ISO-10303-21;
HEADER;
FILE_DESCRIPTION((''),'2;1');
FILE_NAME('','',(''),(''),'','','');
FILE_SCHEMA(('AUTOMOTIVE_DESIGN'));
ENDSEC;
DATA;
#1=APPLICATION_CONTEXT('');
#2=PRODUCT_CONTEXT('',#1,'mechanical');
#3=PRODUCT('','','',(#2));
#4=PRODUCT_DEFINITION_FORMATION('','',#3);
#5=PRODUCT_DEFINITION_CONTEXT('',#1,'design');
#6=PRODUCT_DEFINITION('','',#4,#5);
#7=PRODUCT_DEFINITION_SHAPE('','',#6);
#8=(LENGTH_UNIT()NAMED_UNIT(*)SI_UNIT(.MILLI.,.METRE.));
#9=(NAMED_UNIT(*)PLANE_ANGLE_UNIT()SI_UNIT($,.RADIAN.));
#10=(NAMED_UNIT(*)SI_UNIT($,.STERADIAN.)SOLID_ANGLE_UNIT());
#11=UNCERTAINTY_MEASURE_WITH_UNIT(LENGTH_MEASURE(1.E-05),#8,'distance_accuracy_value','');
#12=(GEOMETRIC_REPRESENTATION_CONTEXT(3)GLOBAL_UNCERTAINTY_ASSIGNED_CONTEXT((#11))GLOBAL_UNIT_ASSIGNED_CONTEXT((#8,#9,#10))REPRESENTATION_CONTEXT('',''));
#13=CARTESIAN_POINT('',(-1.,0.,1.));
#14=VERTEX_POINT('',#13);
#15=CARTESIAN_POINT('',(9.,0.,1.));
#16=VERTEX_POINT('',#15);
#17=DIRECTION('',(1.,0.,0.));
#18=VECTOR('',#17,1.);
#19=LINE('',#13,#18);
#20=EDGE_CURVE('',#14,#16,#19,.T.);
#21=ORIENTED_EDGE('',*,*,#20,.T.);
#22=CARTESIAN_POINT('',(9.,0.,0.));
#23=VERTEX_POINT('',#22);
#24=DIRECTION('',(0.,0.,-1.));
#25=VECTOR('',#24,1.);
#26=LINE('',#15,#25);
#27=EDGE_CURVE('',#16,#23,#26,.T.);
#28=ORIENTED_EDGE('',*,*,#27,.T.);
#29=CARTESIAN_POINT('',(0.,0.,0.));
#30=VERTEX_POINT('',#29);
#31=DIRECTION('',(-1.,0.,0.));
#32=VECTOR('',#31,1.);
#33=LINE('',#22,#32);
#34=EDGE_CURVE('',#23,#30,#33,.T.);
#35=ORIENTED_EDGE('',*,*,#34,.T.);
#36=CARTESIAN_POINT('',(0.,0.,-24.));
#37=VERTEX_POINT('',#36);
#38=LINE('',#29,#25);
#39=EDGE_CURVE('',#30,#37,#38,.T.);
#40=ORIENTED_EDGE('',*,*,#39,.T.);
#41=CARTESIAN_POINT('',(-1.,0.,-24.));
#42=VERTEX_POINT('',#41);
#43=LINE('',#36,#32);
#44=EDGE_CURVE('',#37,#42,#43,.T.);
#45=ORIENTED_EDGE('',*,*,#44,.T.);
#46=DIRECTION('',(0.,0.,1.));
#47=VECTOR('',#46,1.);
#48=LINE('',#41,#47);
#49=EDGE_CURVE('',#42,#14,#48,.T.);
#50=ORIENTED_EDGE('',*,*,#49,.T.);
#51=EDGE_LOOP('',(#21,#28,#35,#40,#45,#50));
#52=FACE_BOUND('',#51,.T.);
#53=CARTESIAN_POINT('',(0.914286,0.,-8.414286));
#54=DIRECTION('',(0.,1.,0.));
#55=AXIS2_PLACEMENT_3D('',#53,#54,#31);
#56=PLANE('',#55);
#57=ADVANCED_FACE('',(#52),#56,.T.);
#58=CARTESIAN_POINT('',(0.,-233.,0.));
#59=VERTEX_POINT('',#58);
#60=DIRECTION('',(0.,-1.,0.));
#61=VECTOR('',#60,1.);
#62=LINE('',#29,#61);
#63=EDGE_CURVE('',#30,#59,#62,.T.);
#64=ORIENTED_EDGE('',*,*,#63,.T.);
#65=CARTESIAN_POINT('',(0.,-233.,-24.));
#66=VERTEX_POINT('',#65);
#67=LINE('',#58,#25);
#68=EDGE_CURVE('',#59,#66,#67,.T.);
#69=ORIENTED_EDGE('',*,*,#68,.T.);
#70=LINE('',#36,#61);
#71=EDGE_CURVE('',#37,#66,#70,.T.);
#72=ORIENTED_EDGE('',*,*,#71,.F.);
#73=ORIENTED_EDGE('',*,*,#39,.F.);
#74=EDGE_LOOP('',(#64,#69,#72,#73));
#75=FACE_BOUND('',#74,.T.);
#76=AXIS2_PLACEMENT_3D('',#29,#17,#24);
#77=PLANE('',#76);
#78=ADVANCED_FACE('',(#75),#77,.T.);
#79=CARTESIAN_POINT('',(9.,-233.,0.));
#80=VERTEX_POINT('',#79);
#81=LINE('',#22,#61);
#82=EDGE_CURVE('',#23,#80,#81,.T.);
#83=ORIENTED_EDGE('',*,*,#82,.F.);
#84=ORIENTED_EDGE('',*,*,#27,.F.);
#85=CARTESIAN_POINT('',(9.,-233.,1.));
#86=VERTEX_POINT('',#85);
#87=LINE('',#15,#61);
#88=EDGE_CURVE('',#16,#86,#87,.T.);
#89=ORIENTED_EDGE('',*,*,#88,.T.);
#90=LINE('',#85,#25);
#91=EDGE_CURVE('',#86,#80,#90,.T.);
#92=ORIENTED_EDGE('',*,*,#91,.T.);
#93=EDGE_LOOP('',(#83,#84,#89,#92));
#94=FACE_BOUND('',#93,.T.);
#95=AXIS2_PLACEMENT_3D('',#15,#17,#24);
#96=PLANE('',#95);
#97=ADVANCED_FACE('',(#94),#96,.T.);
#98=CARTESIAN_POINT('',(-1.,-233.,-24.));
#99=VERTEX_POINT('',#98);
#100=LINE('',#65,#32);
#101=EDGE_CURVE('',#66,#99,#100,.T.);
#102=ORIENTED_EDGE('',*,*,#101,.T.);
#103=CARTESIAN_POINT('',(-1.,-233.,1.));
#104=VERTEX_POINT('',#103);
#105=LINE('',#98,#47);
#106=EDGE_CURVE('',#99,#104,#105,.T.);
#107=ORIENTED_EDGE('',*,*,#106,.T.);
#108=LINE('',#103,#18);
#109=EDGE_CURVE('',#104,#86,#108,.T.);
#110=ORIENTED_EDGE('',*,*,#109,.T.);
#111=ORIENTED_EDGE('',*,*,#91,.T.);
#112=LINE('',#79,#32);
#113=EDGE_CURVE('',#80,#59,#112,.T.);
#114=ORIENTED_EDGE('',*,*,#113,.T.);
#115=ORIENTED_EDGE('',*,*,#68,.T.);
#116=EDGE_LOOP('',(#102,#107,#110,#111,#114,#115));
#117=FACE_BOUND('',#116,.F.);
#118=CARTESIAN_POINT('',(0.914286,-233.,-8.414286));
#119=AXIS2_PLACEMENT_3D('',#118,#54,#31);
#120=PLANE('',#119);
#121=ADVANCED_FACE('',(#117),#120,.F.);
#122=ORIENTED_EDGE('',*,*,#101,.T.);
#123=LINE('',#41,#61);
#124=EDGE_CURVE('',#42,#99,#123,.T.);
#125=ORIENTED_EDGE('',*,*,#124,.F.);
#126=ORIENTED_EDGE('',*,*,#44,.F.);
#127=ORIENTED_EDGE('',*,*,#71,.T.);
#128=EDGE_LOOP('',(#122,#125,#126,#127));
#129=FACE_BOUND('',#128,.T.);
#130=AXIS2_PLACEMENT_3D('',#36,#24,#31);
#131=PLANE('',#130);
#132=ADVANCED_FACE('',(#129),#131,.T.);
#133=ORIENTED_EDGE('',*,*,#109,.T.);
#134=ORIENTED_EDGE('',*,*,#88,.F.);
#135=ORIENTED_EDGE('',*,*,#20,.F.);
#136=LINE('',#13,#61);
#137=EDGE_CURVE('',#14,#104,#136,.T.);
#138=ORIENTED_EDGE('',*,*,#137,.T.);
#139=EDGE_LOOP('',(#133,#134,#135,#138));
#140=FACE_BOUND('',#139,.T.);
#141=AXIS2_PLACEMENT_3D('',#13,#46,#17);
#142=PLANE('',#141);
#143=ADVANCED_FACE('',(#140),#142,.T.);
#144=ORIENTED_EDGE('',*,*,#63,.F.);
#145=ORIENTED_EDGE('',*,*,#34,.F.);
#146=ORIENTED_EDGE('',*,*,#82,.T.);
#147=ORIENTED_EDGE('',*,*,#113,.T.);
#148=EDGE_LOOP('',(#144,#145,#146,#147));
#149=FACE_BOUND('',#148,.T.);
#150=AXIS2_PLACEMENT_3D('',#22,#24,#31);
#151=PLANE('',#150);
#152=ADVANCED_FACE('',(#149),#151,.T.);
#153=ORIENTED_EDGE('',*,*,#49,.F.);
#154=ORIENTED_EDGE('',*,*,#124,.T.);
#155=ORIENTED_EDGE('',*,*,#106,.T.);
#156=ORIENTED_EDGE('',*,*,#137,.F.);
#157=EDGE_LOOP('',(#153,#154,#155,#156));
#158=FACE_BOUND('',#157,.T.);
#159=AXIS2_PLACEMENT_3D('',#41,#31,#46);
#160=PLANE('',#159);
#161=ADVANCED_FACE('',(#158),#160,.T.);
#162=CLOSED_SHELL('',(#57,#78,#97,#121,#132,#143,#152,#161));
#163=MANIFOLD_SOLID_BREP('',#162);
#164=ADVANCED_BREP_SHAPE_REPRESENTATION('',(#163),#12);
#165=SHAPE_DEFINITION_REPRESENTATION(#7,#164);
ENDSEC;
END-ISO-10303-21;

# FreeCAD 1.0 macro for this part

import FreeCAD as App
import Part
import Sketcher
from FreeCAD import Vector
Q = App.Units.Quantity


def add_polygon(sketch, points):
    """Adds a closed chain of lines whose ends are joined by coincident constraints."""
    first, n = sketch.GeometryCount, len(points)
    for a, b in zip(points, points[1:] + points[:1]):
        sketch.addGeometry(Part.LineSegment(App.Vector(*a, 0), App.Vector(*b, 0)), False)
    for i in range(n):
        sketch.addConstraint(Sketcher.Constraint("Coincident", first + i, 2, first + (i + 1) % n, 1))

doc = App.newDocument("Part")
body = doc.addObject("PartDesign::Body", "Body")

# Sketch on XZ plane
sketch1 = doc.addObject("Sketcher::SketchObject", "Sketch")
body.addObject(sketch1)
sketch1.AttachmentSupport = (doc.XZ_Plane, [""])
sketch1.MapMode = "FlatFace"
add_polygon(sketch1, [(0, 0), (9, 0), (9, 1), (-1, 1), (-1, -24), (0, -24)])  # lines 0-5
sketch1.addConstraint([
    Sketcher.Constraint("Horizontal", 0),
    Sketcher.Constraint("Vertical", 1),
    Sketcher.Constraint("Horizontal", 2),
    Sketcher.Constraint("Vertical", 3),
    Sketcher.Constraint("Horizontal", 4),
    Sketcher.Constraint("Vertical", 5),
    Sketcher.Constraint("Coincident", 5, 2, -1, 1),
    Sketcher.Constraint("Equal", 4, 1),
    Sketcher.Constraint("DistanceX", 0, 1, 0, 2, Q("9 mm")),
    Sketcher.Constraint("DistanceX", 2, 2, 2, 1, Q("10 mm")),
    Sketcher.Constraint("DistanceY", 3, 2, 3, 1, Q("25 mm")),
])
pad1 = doc.addObject("PartDesign::Pad", "Pad")
body.addObject(pad1)
pad1.Profile = sketch1
pad1.Length = 233

doc.recompute()
